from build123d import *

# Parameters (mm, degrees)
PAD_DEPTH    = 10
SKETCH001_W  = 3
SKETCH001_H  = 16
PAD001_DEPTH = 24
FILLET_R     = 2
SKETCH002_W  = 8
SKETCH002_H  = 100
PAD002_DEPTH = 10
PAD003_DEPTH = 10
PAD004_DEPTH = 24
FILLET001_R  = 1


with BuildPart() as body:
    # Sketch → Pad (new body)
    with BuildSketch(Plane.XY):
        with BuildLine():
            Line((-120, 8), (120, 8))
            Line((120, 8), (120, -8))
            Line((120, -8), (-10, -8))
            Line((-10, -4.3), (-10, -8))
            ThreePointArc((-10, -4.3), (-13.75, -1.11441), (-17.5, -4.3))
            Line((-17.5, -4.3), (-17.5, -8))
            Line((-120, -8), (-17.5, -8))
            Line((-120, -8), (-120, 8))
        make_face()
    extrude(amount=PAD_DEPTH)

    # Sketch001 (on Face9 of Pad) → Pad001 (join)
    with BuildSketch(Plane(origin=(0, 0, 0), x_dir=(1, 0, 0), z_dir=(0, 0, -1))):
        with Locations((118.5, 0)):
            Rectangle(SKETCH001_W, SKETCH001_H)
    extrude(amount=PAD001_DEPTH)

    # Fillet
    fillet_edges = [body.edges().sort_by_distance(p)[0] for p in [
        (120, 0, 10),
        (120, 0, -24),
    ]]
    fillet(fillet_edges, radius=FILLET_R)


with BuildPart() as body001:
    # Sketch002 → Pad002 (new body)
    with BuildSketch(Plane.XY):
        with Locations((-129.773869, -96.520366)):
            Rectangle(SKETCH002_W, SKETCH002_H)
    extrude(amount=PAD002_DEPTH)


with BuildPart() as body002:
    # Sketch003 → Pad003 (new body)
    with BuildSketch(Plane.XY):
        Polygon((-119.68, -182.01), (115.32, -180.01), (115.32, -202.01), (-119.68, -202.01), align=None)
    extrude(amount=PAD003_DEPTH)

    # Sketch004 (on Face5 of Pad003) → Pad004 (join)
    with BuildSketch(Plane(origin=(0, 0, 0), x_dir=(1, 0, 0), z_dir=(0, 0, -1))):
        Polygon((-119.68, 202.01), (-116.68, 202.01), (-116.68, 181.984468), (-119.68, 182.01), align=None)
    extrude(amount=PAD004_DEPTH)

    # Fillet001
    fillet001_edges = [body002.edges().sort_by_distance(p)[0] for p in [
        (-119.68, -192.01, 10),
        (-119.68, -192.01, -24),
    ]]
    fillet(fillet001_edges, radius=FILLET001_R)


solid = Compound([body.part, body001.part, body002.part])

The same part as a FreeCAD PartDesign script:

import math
import FreeCAD as App
import Part
import Sketcher


def edges_at(feature, points):
    """Names of the edges that pass closest to the given points."""
    edges = feature.Shape.Edges
    near = lambda p: min(range(len(edges)), key=lambda i: edges[i].distToShape(Part.Vertex(*p))[0])
    return sorted({f"Edge{near(p) + 1}" for p in points})


def add_polygon(sketch, points):
    """Adds a closed chain of lines whose ends are joined by coincident constraints."""
    first, n = sketch.GeometryCount, len(points)
    for a, b in zip(points, points[1:] + points[:1]):
        sketch.addGeometry(Part.LineSegment(App.Vector(*a, 0), App.Vector(*b, 0)), False)
    for i in range(n):
        sketch.addConstraint(Sketcher.Constraint("Coincident", first + i, 2, first + (i + 1) % n, 1))

doc = App.newDocument("Part")
body = doc.addObject("PartDesign::Body", "Body")

sketch1 = body.newObject("Sketcher::SketchObject", "Sketch")
sketch1.AttachmentSupport = (doc.getObject("XY_Plane"), [""])
sketch1.MapMode = "FlatFace"
sketch1.addGeometry([
    Part.LineSegment(App.Vector(120, 8, 0), App.Vector(-120, 8, 0)),
    Part.LineSegment(App.Vector(-120, 8, 0), App.Vector(-120, -8, 0)),
    Part.LineSegment(App.Vector(-120, -8, 0), App.Vector(-17.5, -8, 0)),
    Part.LineSegment(App.Vector(-17.5, -8, 0), App.Vector(-17.5, -4.3, 0)),
    Part.ArcOfCircle(Part.Circle(App.Vector(-13.8, -4.9, 0), App.Vector(0, 0, 1), 3.8), math.radians(9), math.radians(171)),
    Part.LineSegment(App.Vector(-10, -4.3, 0), App.Vector(-10, -8, 0)),
    Part.LineSegment(App.Vector(-10, -8, 0), App.Vector(120, -8, 0)),
    Part.LineSegment(App.Vector(120, -8, 0), App.Vector(120, 8, 0)),
], False)
sketch1.addConstraint([
    Sketcher.Constraint("Coincident", 0, 2, 1, 1),
    Sketcher.Constraint("Coincident", 1, 2, 2, 1),
    Sketcher.Constraint("Coincident", 2, 2, 3, 1),
    Sketcher.Constraint("Coincident", 3, 2, 4, 2),
    Sketcher.Constraint("Coincident", 4, 1, 5, 1),
    Sketcher.Constraint("Coincident", 5, 2, 6, 1),
    Sketcher.Constraint("Coincident", 6, 2, 7, 1),
    Sketcher.Constraint("Coincident", 7, 2, 0, 1),
    Sketcher.Constraint("Horizontal", 0),
    Sketcher.Constraint("Vertical", 1),
    Sketcher.Constraint("Horizontal", 2),
    Sketcher.Constraint("Vertical", 3),
    Sketcher.Constraint("Vertical", 5),
    Sketcher.Constraint("Horizontal", 6),
    Sketcher.Constraint("Vertical", 7),
    Sketcher.Constraint("Symmetric", 0, 2, 6, 2, -1, 1),
    Sketcher.Constraint("Horizontal", 3, 2, 4, 1),
    Sketcher.Constraint("Horizontal", 2, 2, 5, 2),
    Sketcher.Constraint("Radius", 4, 3.8),
    Sketcher.Constraint("DistanceX", 0, 2, 0, 1, 240.0),
    Sketcher.Constraint("DistanceX", 6, 1, 6, 2, 130.0),
    Sketcher.Constraint("DistanceY", 1, 2, 1, 1, 16.0),
    Sketcher.Constraint("DistanceX", 2, 1, 2, 2, 102.5),
    Sketcher.Constraint("DistanceY", 3, 1, 3, 2, 3.7),
])
pad1 = body.newObject("PartDesign::Pad", "Pad")
pad1.Profile = sketch1
pad1.Length = 10

sketch2 = body.newObject("Sketcher::SketchObject", "Sketch001")
sketch2.AttachmentSupport = (doc.getObject("XY_Plane"), [""])
sketch2.MapMode = "FlatFace"
add_polygon(sketch2, [(117, -8), (117, 8), (120, 8), (120, -8)])
sketch2.addConstraint([
    Sketcher.Constraint("Vertical", 0),
    Sketcher.Constraint("Horizontal", 1),
    Sketcher.Constraint("Vertical", 2),
    Sketcher.Constraint("Horizontal", 3),
    Sketcher.Constraint("DistanceX", 1, 1, 1, 2, 3.0),
    Sketcher.Constraint("DistanceY", 0, 1, 0, 2, 16.0),
    Sketcher.Constraint("DistanceX", -1, 1, 0, 2, 117.0),
    Sketcher.Constraint("DistanceY", -1, 1, 0, 2, 8.0),
])
pad2 = body.newObject("PartDesign::Pad", "Pad001")
pad2.Profile = sketch2
pad2.Length = 24
pad2.Reversed = True
doc.recompute()

fillet = body.newObject("PartDesign::Fillet", "Fillet")
fillet.Base = (pad2, edges_at(pad2, [(120, 0, 10), (120, 0, -24)]))
fillet.Radius = 2
body2 = doc.addObject("PartDesign::Body", "Body001")

sketch3 = body2.newObject("Sketcher::SketchObject", "Sketch002")
sketch3.AttachmentSupport = (doc.getObject("XY_Plane001"), [""])
sketch3.MapMode = "FlatFace"
add_polygon(sketch3, [(-134, -47), (-134, -147), (-126, -147), (-126, -47)])
sketch3.addConstraint([
    Sketcher.Constraint("Vertical", 0),
    Sketcher.Constraint("Horizontal", 1),
    Sketcher.Constraint("Vertical", 2),
    Sketcher.Constraint("Horizontal", 3),
    Sketcher.Constraint("DistanceX", 1, 1, 1, 2, 8.0),
    Sketcher.Constraint("DistanceY", 0, 2, 0, 1, 100.0),
    Sketcher.Constraint("DistanceX", 0, 2, -1, 1, 133.773869),
    Sketcher.Constraint("DistanceY", 0, 2, -1, 1, 146.520366),
])
pad3 = body2.newObject("PartDesign::Pad", "Pad002")
pad3.Profile = sketch3
pad3.Length = 10
body3 = doc.addObject("PartDesign::Body", "Body002")

sketch4 = body3.newObject("Sketcher::SketchObject", "Sketch003")
sketch4.AttachmentSupport = (doc.getObject("XY_Plane002"), [""])
sketch4.MapMode = "FlatFace"
add_polygon(sketch4, [(115, -180), (-120, -182), (-120, -202), (115, -202)])
sketch4.addConstraint([
    Sketcher.Constraint("Vertical", 1),
    Sketcher.Constraint("Horizontal", 2),
    Sketcher.Constraint("Vertical", 3),
    Sketcher.Constraint("DistanceX", 2, 1, 2, 2, 235.0),
    Sketcher.Constraint("DistanceY", 1, 2, 1, 1, 20.0),
    Sketcher.Constraint("DistanceY", 3, 1, 3, 2, 22.0),
    Sketcher.Constraint("DistanceX", 0, 2, -1, 1, 119.68),
    Sketcher.Constraint("DistanceY", 0, 2, -1, 1, 182.01),
])
pad4 = body3.newObject("PartDesign::Pad", "Pad003")
pad4.Profile = sketch4
pad4.Length = 10

sketch5 = body3.newObject("Sketcher::SketchObject", "Sketch004")
sketch5.AttachmentSupport = (doc.getObject("XY_Plane002"), [""])
sketch5.MapMode = "FlatFace"
add_polygon(sketch5, [(-116.7, -202), (-119.7, -202), (-119.7, -182), (-116.7, -182)])
sketch5.addConstraint([
    Sketcher.Constraint("Horizontal", 0),
    Sketcher.Constraint("Vertical", 1),
    Sketcher.Constraint("Vertical", 3),
    Sketcher.Constraint("DistanceX", 0, 2, 0, 1, 3.0),
    Sketcher.Constraint("DistanceY", 1, 1, 1, 2, 20.0),
    Sketcher.Constraint("DistanceX", 0, 2, -1, 1, 119.68),
    Sketcher.Constraint("DistanceY", 0, 2, -1, 1, 202.01),
    Sketcher.Constraint("DistanceY", 3, 2, 3, 1, 20.025532),
])
pad5 = body3.newObject("PartDesign::Pad", "Pad004")
pad5.Profile = sketch5
pad5.Length = 24
pad5.Reversed = True
doc.recompute()

fillet2 = body3.newObject("PartDesign::Fillet", "Fillet001")
fillet2.Base = (pad5, edges_at(pad5, [(-119.68, -192.01, 10), (-119.68, -192.01, -24)]))
fillet2.Radius = 1

doc.recompute()
